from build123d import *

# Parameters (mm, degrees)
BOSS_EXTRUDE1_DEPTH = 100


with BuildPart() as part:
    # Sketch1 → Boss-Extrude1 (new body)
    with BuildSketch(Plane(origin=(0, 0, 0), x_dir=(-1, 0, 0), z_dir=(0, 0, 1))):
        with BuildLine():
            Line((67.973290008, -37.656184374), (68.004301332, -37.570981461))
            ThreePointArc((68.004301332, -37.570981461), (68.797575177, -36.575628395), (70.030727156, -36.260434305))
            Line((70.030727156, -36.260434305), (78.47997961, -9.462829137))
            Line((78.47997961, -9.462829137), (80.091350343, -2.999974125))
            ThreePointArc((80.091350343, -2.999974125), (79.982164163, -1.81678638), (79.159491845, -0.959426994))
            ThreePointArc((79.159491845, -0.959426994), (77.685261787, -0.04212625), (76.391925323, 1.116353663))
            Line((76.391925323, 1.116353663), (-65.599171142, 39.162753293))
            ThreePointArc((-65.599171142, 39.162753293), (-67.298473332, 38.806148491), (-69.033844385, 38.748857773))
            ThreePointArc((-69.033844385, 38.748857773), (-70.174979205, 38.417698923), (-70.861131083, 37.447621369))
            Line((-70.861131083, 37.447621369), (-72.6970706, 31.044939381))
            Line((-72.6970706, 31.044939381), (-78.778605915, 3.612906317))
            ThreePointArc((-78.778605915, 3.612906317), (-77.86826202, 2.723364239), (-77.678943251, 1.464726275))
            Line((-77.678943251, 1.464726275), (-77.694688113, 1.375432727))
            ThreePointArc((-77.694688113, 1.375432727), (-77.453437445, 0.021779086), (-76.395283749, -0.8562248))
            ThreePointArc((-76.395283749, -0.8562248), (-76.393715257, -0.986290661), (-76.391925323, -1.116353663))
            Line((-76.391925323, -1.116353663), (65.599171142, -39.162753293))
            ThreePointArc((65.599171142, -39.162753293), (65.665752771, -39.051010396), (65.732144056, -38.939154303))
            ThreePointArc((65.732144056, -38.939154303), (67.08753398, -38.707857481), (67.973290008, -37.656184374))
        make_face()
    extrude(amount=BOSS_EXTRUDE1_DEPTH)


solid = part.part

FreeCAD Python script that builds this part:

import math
import FreeCAD as App
import Part
import Sketcher
from FreeCAD import Vector
Q = App.Units.Quantity

doc = App.newDocument("Part")
body = doc.addObject("PartDesign::Body", "Body")

sketch1 = body.newObject("Sketcher::SketchObject", "Sketch")
sketch1.AttachmentSupport = (doc.getObject("XY_Plane"), [""])
sketch1.MapMode = "FlatFace"
sketch1.addGeometry([
    Part.LineSegment(Vector(-67.97, 37.66, 0), Vector(-68, 37.57, 0)),
    Part.ArcOfCircle(Part.Circle(Vector(-69.88, 38.26, 0), Vector(0, 0, 1), 2), math.radians(-94), math.radians(-20)),
    Part.LineSegment(Vector(-70.03, 36.26, 0), Vector(-78.48, 9.46, 0)),
    Part.LineSegment(Vector(-78.48, 9.46, 0), Vector(-80.09, 3, 0)),
    Part.ArcOfCircle(Part.Circle(Vector(-78.34, 2.56, 0), Vector(0, 0, 1), 1.8), math.radians(166), math.radians(243)),
    Part.ArcOfCircle(Part.Circle(Vector(-83.69, -7.96, 0), Vector(0, 0, 1), 10), math.radians(43.17), math.radians(63.09)),
    Part.LineSegment(Vector(-76.39, -1.12, 0), Vector(65.6, -39.16, 0)),
    Part.ArcOfCircle(Part.Circle(Vector(68.49, -48.73, 0), Vector(0, 0, 1), 10), math.radians(86.91), math.radians(106.83)),
    Part.ArcOfCircle(Part.Circle(Vector(69.13, -36.95, 0), Vector(0, 0, 1), 1.8), math.radians(-93), math.radians(-16)),
    Part.LineSegment(Vector(70.86, -37.45, 0), Vector(72.7, -31.04, 0)),
    Part.LineSegment(Vector(72.7, -31.04, 0), Vector(78.78, -3.61, 0)),
    Part.ArcOfCircle(Part.Circle(Vector(79.65, -1.81, 0), Vector(0, 0, 1), 2), math.radians(170), math.radians(244)),
    Part.LineSegment(Vector(77.68, -1.46, 0), Vector(77.69, -1.38, 0)),
    Part.ArcOfCircle(Part.Circle(Vector(75.73, -1.03, 0), Vector(0, 0, 1), 2), math.radians(-10), math.radians(70)),
    Part.ArcOfCircle(Part.Circle(Vector(0, 0, 0), Vector(0, 0, 1), 76.4), math.radians(0.64), math.radians(0.84)),
    Part.LineSegment(Vector(76.39, 1.12, 0), Vector(-65.6, 39.16, 0)),
    Part.ArcOfCircle(Part.Circle(Vector(0, 0, 0), Vector(0, 0, 1), 76.4), math.radians(149.16), math.radians(149.36)),
    Part.ArcOfCircle(Part.Circle(Vector(-66.09, 36.97, 0), Vector(0, 0, 1), 2), math.radians(80), math.radians(160)),
], False)
sketch1.addConstraint([
    Sketcher.Constraint("Tangent", 0, 2, 1, 2),
    Sketcher.Constraint("Coincident", 1, 1, 2, 1),
    Sketcher.Constraint("Coincident", 2, 2, 3, 1),
    Sketcher.Constraint("Tangent", 3, 2, 4, 1),
    Sketcher.Constraint("Tangent", 4, 2, 5, 2),
    Sketcher.Constraint("Coincident", 5, 1, 6, 1),
    Sketcher.Constraint("Coincident", 6, 2, 7, 2),
    Sketcher.Constraint("Tangent", 7, 1, 8, 1),
    Sketcher.Constraint("Tangent", 8, 2, 9, 1),
    Sketcher.Constraint("Coincident", 9, 2, 10, 1),
    Sketcher.Constraint("Coincident", 10, 2, 11, 2),
    Sketcher.Constraint("Tangent", 11, 1, 12, 1),
    Sketcher.Constraint("Tangent", 12, 2, 13, 1),
    Sketcher.Constraint("Coincident", 13, 2, 14, 1),
    Sketcher.Constraint("Coincident", 14, 2, 15, 1),
    Sketcher.Constraint("Coincident", 15, 2, 16, 1),
    Sketcher.Constraint("Coincident", 16, 2, 17, 1),
    Sketcher.Constraint("Tangent", 17, 2, 0, 1),
    Sketcher.Constraint("Equal", 5, 7),
    Sketcher.Constraint("Equal", 4, 8),
    Sketcher.Constraint("Equal", 1, 11),
    Sketcher.Constraint("Equal", 11, 13),
    Sketcher.Constraint("Equal", 13, 17),
    Sketcher.Constraint("Symmetric", 5, 1, 14, 2, -1, 1),
    Sketcher.Constraint("Symmetric", 6, 2, 15, 2, -1, 1),
    Sketcher.Constraint("PointOnObject", 14, 3, -1),
    Sketcher.Constraint("Equal", 3, 9),
    Sketcher.Constraint("Equal", 2, 10),
    Sketcher.Constraint("Equal", 0, 12),
    Sketcher.Constraint("Radius", 1, 2.0),
    Sketcher.Constraint("Radius", 5, 10.0),
    Sketcher.Constraint("Radius", 4, 1.8),
    Sketcher.Constraint("Angle", 0, Q("-110 deg")),
    Sketcher.Constraint("Angle", 3, Q("-104 deg")),
    Sketcher.Constraint("Angle", 6, Q("-15 deg")),
    Sketcher.Constraint("Angle", 9, Q("74 deg")),
    Sketcher.Constraint("Angle", 12, Q("80 deg")),
    Sketcher.Constraint("Distance", 6, 147.0),
    Sketcher.Constraint("Angle", 2, Q("-107.5 deg")),
    Sketcher.Constraint("Angle", 10, Q("77.5 deg")),
    Sketcher.Constraint("Radius", 16, 76.40048),
    Sketcher.Constraint("Radius", 14, 76.400043),
    Sketcher.Constraint("DistanceX", 0, 2, -1, 1, 68.004301),
    Sketcher.Constraint("DistanceX", 8, 3, 11, 3, 10.517699),
    Sketcher.Constraint("DistanceY", 7, 3, 11, 3, 46.9223),
    Sketcher.Constraint("DistanceY", 5, 3, 3, 2, 10.957701),
    Sketcher.Constraint("DistanceX", 6, 2, 13, 3, 10.125901),
    Sketcher.Constraint("DistanceY", 7, 3, 8, 2, 11.286701),
    Sketcher.Constraint("DistanceX", 6, 2, 9, 2, 7.097899),
    Sketcher.Constraint("DistanceY", 16, 2, 15, 2, 0.223599),
    Sketcher.Constraint("Distance", 0, 0.090671),
    Sketcher.Constraint("DistanceY", -1, 1, 1, 3, 38.255022),
    Sketcher.Constraint("DistanceX", 4, 3, -1, 1, 78.344818),
    Sketcher.Constraint("DistanceX", -1, 1, 16, 3, 0.000342),
])
pad1 = body.newObject("PartDesign::Pad", "Pad")
pad1.Profile = sketch1
pad1.Length = 100

doc.recompute()
